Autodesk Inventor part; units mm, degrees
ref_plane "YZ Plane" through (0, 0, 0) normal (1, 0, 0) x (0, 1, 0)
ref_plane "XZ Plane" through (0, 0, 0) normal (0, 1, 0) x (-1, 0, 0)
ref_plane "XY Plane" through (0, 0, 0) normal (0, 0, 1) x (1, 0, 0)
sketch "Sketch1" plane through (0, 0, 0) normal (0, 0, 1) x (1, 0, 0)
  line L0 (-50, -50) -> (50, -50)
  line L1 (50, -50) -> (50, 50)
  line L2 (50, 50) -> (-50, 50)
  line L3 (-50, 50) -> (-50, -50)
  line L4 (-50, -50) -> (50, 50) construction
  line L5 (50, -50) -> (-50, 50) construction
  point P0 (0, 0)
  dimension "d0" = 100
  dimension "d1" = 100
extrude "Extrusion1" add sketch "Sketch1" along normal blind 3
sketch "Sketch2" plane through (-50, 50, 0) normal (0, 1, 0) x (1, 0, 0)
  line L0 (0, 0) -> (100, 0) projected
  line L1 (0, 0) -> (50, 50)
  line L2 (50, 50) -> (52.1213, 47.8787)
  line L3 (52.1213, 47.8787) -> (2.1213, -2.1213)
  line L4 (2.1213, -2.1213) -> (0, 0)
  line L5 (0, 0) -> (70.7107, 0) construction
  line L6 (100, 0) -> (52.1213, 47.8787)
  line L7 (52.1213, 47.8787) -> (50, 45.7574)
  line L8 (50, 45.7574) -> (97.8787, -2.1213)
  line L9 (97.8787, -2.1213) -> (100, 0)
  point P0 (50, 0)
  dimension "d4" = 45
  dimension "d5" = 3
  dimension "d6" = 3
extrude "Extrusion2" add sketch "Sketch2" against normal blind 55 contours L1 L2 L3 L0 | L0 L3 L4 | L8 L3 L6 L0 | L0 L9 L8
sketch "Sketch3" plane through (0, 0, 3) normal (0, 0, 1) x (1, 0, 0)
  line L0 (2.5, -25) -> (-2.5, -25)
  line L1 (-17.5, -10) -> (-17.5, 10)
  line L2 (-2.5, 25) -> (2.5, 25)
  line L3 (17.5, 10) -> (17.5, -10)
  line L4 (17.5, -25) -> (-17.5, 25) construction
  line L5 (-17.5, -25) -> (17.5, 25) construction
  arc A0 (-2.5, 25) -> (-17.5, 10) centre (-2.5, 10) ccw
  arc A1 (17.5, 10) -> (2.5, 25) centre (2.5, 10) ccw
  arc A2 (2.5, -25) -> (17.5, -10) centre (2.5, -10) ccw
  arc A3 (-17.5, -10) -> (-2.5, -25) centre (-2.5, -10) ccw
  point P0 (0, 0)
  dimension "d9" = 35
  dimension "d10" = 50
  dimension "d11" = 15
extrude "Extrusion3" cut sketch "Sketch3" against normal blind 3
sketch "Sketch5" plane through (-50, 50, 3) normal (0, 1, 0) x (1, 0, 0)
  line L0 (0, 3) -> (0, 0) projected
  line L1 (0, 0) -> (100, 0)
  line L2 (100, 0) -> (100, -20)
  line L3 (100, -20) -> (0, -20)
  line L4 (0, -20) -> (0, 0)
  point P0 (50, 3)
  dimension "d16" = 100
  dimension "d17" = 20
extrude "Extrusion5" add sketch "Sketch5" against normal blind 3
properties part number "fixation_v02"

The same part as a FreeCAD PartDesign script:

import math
import FreeCAD as App
import Part
import Sketcher
from FreeCAD import Vector

doc = App.newDocument("Part")
params = doc.addObject("Spreadsheet::Sheet", "Params")
for row, (alias, value) in enumerate([
    ("sketch1_width", "100 mm"),
    ("pad1_length", "3 mm"),
    ("sketch2_length", "3 mm"),
    ("pad2_length", "55 mm"),
    ("sketch3_radius", "15 mm"),
    ("sketch3_width", "5 mm"),
    ("pocket1_length", "3 mm"),
    ("sketch4_width", "100 mm"),
    ("sketch4_height", "20 mm"),
    ("pad3_length", "3 mm"),
], start=1):
    params.set(f"A{row}", alias)
    params.set(f"B{row}", "=" + value)
    params.setAlias(f"B{row}", alias)

body = doc.addObject("PartDesign::Body", "Body")

sketch1 = body.newObject("Sketcher::SketchObject", "Sketch")
sketch1.AttachmentSupport = (doc.getObject("XY_Plane"), [""])
sketch1.MapMode = "FlatFace"
sketch1.addGeometry([
    Part.LineSegment(Vector(-50, 50, 0), Vector(-50, -50, 0)),
    Part.LineSegment(Vector(-50, -50, 0), Vector(50, -50, 0)),
    Part.LineSegment(Vector(50, -50, 0), Vector(50, 50, 0)),
    Part.LineSegment(Vector(50, 50, 0), Vector(-50, 50, 0)),
], False)
sketch1.addConstraint([
    Sketcher.Constraint("Coincident", 0, 2, 1, 1),
    Sketcher.Constraint("Coincident", 1, 2, 2, 1),
    Sketcher.Constraint("Coincident", 2, 2, 3, 1),
    Sketcher.Constraint("Coincident", 3, 2, 0, 1),
    Sketcher.Constraint("Vertical", 0),
    Sketcher.Constraint("Horizontal", 1),
    Sketcher.Constraint("Vertical", 2),
    Sketcher.Constraint("Horizontal", 3),
    Sketcher.Constraint("Symmetric", 0, 2, 2, 2, -1, 1),
    Sketcher.Constraint("Equal", 3, 0),
    Sketcher.Constraint("DistanceX", 1, 1, 1, 2, 100.0),
])
sketch1.setExpression("Constraints[10]", "Params.sketch1_width")
pad1 = body.newObject("PartDesign::Pad", "Pad")
pad1.Profile = sketch1
pad1.setExpression("Length", "Params.pad1_length")

sketch2 = body.newObject("Sketcher::SketchObject", "Sketch001")
sketch2.AttachmentSupport = (doc.getObject("XZ_Plane"), [""])
sketch2.MapMode = "FlatFace"
sketch2.AttachmentOffset = App.Placement(Vector(0, 0, -50), App.Rotation())
sketch2.addGeometry([
    Part.LineSegment(Vector(0, -50, 0), Vector(-50, 0, 0)),
    Part.LineSegment(Vector(-50, 0, 0), Vector(-47.9, 2.1, 0)),
    Part.LineSegment(Vector(-47.9, 2.1, 0), Vector(0, -45.8, 0)),
    Part.LineSegment(Vector(0, -45.8, 0), Vector(47.9, 2.1, 0)),
    Part.LineSegment(Vector(47.9, 2.1, 0), Vector(50, 0, 0)),
    Part.LineSegment(Vector(50, 0, 0), Vector(0, -50, 0)),
], False)
sketch2.addConstraint([
    Sketcher.Constraint("Coincident", 0, 2, 1, 1),
    Sketcher.Constraint("Coincident", 1, 2, 2, 1),
    Sketcher.Constraint("Coincident", 2, 2, 3, 1),
    Sketcher.Constraint("Coincident", 3, 2, 4, 1),
    Sketcher.Constraint("Coincident", 4, 2, 5, 1),
    Sketcher.Constraint("Coincident", 5, 2, 0, 1),
    Sketcher.Constraint("Symmetric", 0, 2, 4, 2, -1, 1),
    Sketcher.Constraint("Symmetric", 1, 2, 3, 2, -2),
    Sketcher.Constraint("PointOnObject", 0, 2, -1),
    Sketcher.Constraint("PointOnObject", 2, 2, -2),
    Sketcher.Constraint("PointOnObject", 5, 2, -2),
    Sketcher.Constraint("Perpendicular", 0, 1),
    Sketcher.Constraint("Perpendicular", 1, 2),
    Sketcher.Constraint("Perpendicular", 2, 3),
    Sketcher.Constraint("Distance", 1, 3.0),
    Sketcher.Constraint("DistanceX", 0, 2, -1, 1, 50.0),
])
sketch2.setExpression("Constraints[14]", "Params.sketch2_length")
pad2 = body.newObject("PartDesign::Pad", "Pad001")
pad2.Profile = sketch2
pad2.setExpression("Length", "Params.pad2_length")

sketch3 = body.newObject("Sketcher::SketchObject", "Sketch002")
sketch3.AttachmentSupport = (doc.getObject("XY_Plane"), [""])
sketch3.MapMode = "FlatFace"
sketch3.AttachmentOffset = App.Placement(Vector(0, 0, 3), App.Rotation())
sketch3.addGeometry([
    Part.LineSegment(Vector(-2, -25, 0), Vector(2, -25, 0)),
    Part.ArcOfCircle(Part.Circle(Vector(2, -10, 0), Vector(0, 0, 1), 15), math.radians(-90), math.radians(0)),
    Part.LineSegment(Vector(18, -10, 0), Vector(18, 10, 0)),
    Part.ArcOfCircle(Part.Circle(Vector(2, 10, 0), Vector(0, 0, 1), 15), math.radians(0), math.radians(90)),
    Part.LineSegment(Vector(2, 25, 0), Vector(-2, 25, 0)),
    Part.ArcOfCircle(Part.Circle(Vector(-2, 10, 0), Vector(0, 0, 1), 15), math.radians(90), math.radians(180)),
    Part.LineSegment(Vector(-18, 10, 0), Vector(-18, -10, 0)),
    Part.ArcOfCircle(Part.Circle(Vector(-2, -10, 0), Vector(0, 0, 1), 15), math.radians(180), math.radians(270)),
], False)
sketch3.addConstraint([
    Sketcher.Constraint("Tangent", 0, 2, 1, 1),
    Sketcher.Constraint("Tangent", 1, 2, 2, 1),
    Sketcher.Constraint("Tangent", 2, 2, 3, 1),
    Sketcher.Constraint("Tangent", 3, 2, 4, 1),
    Sketcher.Constraint("Tangent", 4, 2, 5, 1),
    Sketcher.Constraint("Tangent", 5, 2, 6, 1),
    Sketcher.Constraint("Tangent", 6, 2, 7, 1),
    Sketcher.Constraint("Tangent", 7, 2, 0, 1),
    Sketcher.Constraint("Horizontal", 0),
    Sketcher.Constraint("Vertical", 2),
    Sketcher.Constraint("Horizontal", 4),
    Sketcher.Constraint("Vertical", 6),
    Sketcher.Constraint("Equal", 1, 3),
    Sketcher.Constraint("Equal", 3, 5),
    Sketcher.Constraint("Equal", 5, 7),
    Sketcher.Constraint("Symmetric", 1, 3, 5, 3, -1, 1),
    Sketcher.Constraint("Radius", 1, 15.0),
    Sketcher.Constraint("DistanceY", 0, 2, 3, 3, 35.0),
    Sketcher.Constraint("DistanceX", 0, 1, 0, 2, 5.0),
])
sketch3.setExpression("Constraints[16]", "Params.sketch3_radius")
sketch3.setExpression("Constraints[18]", "Params.sketch3_width")
pocket1 = body.newObject("PartDesign::Pocket", "Pocket")
pocket1.Profile = sketch3
pocket1.setExpression("Length", "Params.pocket1_length")

sketch4 = body.newObject("Sketcher::SketchObject", "Sketch003")
sketch4.AttachmentSupport = (doc.getObject("XZ_Plane"), [""])
sketch4.MapMode = "FlatFace"
sketch4.AttachmentOffset = App.Placement(Vector(0, 0, -50), App.Rotation())
sketch4.addGeometry([
    Part.LineSegment(Vector(50, 3, 0), Vector(-50, 3, 0)),
    Part.LineSegment(Vector(-50, 3, 0), Vector(-50, 23, 0)),
    Part.LineSegment(Vector(-50, 23, 0), Vector(50, 23, 0)),
    Part.LineSegment(Vector(50, 23, 0), Vector(50, 3, 0)),
], False)
sketch4.addConstraint([
    Sketcher.Constraint("Coincident", 0, 2, 1, 1),
    Sketcher.Constraint("Coincident", 1, 2, 2, 1),
    Sketcher.Constraint("Coincident", 2, 2, 3, 1),
    Sketcher.Constraint("Coincident", 3, 2, 0, 1),
    Sketcher.Constraint("Horizontal", 0),
    Sketcher.Constraint("Vertical", 1),
    Sketcher.Constraint("Horizontal", 2),
    Sketcher.Constraint("Vertical", 3),
    Sketcher.Constraint("DistanceX", 0, 2, 0, 1, 100.0),
    Sketcher.Constraint("DistanceY", 1, 1, 1, 2, 20.0),
    Sketcher.Constraint("DistanceX", 0, 2, -1, 1, 50.0),
    Sketcher.Constraint("DistanceY", -1, 1, 0, 2, 3.0),
])
sketch4.setExpression("Constraints[8]", "Params.sketch4_width")
sketch4.setExpression("Constraints[9]", "Params.sketch4_height")
pad3 = body.newObject("PartDesign::Pad", "Pad002")
pad3.Profile = sketch4
pad3.setExpression("Length", "Params.pad3_length")

doc.recompute()
